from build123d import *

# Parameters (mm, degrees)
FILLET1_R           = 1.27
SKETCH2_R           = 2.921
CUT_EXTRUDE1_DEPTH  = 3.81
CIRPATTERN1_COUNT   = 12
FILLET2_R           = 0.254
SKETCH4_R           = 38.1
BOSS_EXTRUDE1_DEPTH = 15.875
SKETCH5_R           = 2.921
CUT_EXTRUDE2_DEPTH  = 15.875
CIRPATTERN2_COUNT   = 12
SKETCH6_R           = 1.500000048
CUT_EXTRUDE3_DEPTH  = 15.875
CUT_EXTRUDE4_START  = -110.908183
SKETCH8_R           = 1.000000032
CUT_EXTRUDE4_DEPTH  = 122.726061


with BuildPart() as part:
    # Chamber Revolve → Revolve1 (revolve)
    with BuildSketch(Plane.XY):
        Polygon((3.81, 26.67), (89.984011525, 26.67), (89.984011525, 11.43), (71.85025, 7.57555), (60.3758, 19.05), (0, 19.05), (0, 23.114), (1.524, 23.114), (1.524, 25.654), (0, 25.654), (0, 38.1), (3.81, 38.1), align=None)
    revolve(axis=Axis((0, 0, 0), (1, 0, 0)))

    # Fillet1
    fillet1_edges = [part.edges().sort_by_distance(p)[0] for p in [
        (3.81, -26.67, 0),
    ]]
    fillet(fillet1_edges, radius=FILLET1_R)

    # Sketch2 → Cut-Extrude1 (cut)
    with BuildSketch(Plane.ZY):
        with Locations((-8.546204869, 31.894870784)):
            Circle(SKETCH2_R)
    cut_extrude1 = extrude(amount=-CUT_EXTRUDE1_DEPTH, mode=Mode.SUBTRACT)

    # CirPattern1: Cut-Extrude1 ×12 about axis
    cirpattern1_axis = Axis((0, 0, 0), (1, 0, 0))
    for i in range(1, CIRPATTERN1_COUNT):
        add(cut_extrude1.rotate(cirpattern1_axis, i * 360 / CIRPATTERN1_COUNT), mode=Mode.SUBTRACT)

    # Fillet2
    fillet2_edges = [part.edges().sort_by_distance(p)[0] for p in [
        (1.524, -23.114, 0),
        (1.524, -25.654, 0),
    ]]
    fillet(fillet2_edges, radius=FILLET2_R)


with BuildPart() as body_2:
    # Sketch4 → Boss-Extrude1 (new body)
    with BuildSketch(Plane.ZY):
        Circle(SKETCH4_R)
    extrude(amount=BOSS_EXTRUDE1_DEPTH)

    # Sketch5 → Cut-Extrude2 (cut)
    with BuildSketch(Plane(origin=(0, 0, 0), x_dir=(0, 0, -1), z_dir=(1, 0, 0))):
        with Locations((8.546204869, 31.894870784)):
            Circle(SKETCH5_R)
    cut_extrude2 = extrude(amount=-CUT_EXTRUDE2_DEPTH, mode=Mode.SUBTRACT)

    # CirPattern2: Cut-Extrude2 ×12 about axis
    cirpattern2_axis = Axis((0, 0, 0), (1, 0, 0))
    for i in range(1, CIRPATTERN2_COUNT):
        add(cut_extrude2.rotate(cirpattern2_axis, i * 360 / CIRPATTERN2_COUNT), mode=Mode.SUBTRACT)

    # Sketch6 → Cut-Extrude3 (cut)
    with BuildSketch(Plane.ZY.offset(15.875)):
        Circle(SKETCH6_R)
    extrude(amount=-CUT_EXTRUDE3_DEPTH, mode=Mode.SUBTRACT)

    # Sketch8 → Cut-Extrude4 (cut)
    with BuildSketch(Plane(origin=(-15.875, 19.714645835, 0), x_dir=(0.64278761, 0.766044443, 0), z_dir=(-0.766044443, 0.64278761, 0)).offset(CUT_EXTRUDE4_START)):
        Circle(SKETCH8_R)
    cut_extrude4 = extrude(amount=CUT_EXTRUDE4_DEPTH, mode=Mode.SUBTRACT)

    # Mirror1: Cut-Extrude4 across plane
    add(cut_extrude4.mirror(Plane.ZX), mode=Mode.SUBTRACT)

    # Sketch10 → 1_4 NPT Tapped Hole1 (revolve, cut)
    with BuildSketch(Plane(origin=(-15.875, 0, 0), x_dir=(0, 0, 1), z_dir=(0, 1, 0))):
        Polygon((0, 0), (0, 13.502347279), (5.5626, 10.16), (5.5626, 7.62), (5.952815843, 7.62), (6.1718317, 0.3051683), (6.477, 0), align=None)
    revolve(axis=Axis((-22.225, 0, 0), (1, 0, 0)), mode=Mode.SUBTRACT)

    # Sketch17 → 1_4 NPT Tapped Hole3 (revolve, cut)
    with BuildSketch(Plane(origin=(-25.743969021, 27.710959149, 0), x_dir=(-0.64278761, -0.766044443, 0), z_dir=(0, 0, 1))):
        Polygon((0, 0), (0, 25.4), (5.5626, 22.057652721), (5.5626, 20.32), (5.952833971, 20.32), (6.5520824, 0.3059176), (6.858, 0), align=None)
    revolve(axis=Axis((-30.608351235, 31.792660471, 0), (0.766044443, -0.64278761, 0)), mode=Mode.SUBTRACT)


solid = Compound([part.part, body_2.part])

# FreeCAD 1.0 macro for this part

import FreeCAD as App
import Part
import Sketcher

V = App.Vector
Q = App.Units.Quantity


def edges_at(feature, points):
    """Names of the edges that pass closest to the given points."""
    edges = feature.Shape.Edges
    near = lambda p: min(range(len(edges)), key=lambda i: edges[i].distToShape(Part.Vertex(*p))[0])
    return sorted({f"Edge{near(p) + 1}" for p in points})


def add_polygon(sketch, points):
    """Adds a closed chain of lines whose ends are joined by coincident constraints."""
    first, n = sketch.GeometryCount, len(points)
    for a, b in zip(points, points[1:] + points[:1]):
        sketch.addGeometry(Part.LineSegment(App.Vector(*a, 0), App.Vector(*b, 0)), False)
    for i in range(n):
        sketch.addConstraint(Sketcher.Constraint("Coincident", first + i, 2, first + (i + 1) % n, 1))

doc = App.newDocument("Part")
body = doc.addObject("PartDesign::Body", "Body")

# Sketch on XY plane
sketch1 = body.newObject("Sketcher::SketchObject", "Sketch")
sketch1.AttachmentSupport = (doc.getObject("XY_Plane"), [""])
sketch1.MapMode = "FlatFace"
add_polygon(sketch1, [(90, 26.7), (3.8, 26.7), (3.8, 38.1), (0, 38.1), (0, 25.7), (1.5, 25.7), (1.5, 23.1), (0, 23.1), (0, 19.1), (60.4, 19.1), (71.9, 7.6), (90, 11.4)])  # lines 0-11
sketch1.addConstraint(Sketcher.Constraint("Horizontal", 0))
sketch1.addConstraint(Sketcher.Constraint("Vertical", 1))
sketch1.addConstraint(Sketcher.Constraint("Horizontal", 2))
sketch1.addConstraint(Sketcher.Constraint("Vertical", 3))
sketch1.addConstraint(Sketcher.Constraint("Horizontal", 4))
sketch1.addConstraint(Sketcher.Constraint("Vertical", 5))
sketch1.addConstraint(Sketcher.Constraint("Horizontal", 6))
sketch1.addConstraint(Sketcher.Constraint("Vertical", 7))
sketch1.addConstraint(Sketcher.Constraint("Horizontal", 8))
sketch1.addConstraint(Sketcher.Constraint("Vertical", 11))
sketch1.addConstraint(Sketcher.Constraint("PointOnObject", 2, 2, -2))
sketch1.addConstraint(Sketcher.Constraint("PointOnObject", 6, 2, -2))
sketch1.addConstraint(Sketcher.Constraint("DistanceY", 5, 2, 5, 1, Q("0.1 in")))
sketch1.addConstraint(Sketcher.Constraint("DistanceY", 11, 1, 11, 2, Q("0.6 in")))
sketch1.addConstraint(Sketcher.Constraint("Angle", 9, Q("-45 deg")))
sketch1.addConstraint(Sketcher.Constraint("Angle", 10, Q("12 deg")))
sketch1.addConstraint(Sketcher.Constraint("DistanceX", 2, 2, 2, 1, Q("0.15 in")))
sketch1.addConstraint(Sketcher.Constraint("DistanceX", 4, 1, 4, 2, Q("0.06 in")))
sketch1.addConstraint(Sketcher.Constraint("DistanceY", 1, 1, 1, 2, Q("0.45 in")))
sketch1.addConstraint(Sketcher.Constraint("DistanceY", 3, 2, 3, 1, Q("0.49 in")))
sketch1.addConstraint(Sketcher.Constraint("DistanceY", 7, 2, 7, 1, Q("0.16 in")))
sketch1.addConstraint(Sketcher.Constraint("DistanceY", -1, 1, 1, 2, Q("1.5 in")))
sketch1.addConstraint(Sketcher.Constraint("DistanceX", 8, 1, 8, 2, Q("2.377 in")))
sketch1.addConstraint(Sketcher.Constraint("DistanceX", 0, 2, 0, 1, Q("86.174012 mm")))
revolution = body.newObject("PartDesign::Revolution", "Revolution")
revolution.Profile = sketch1
revolution.ReferenceAxis = (sketch1, ["H_Axis"])
revolution.Angle = 360
doc.recompute()

fillet = body.newObject("PartDesign::Fillet", "Fillet")
fillet.Base = (revolution, edges_at(revolution, [(3.81, -26.67, 0)]))
fillet.Radius = Q("0.05 in")

# Sketch on YZ plane
sketch2 = body.newObject("Sketcher::SketchObject", "Sketch001")
sketch2.AttachmentSupport = (doc.getObject("YZ_Plane"), [""])
sketch2.MapMode = "FlatFace"
sketch2.addGeometry(Part.Circle(V(31.9, -8.5, 0), V(0, 0, 1), 2.9), False)
sketch2.addConstraint(Sketcher.Constraint("Diameter", 0, Q("0.23 in")))
sketch2.addConstraint(Sketcher.Constraint("DistanceX", -1, 1, 0, 3, Q("31.894871 mm")))
sketch2.addConstraint(Sketcher.Constraint("DistanceY", 0, 3, -1, 1, Q("8.546205 mm")))
pocket1 = body.newObject("PartDesign::Pocket", "Pocket")
pocket1.Profile = sketch2
pocket1.Length = Q("0.15 in")
pocket1.Reversed = True
doc.recompute()

polarpattern = body.newObject("PartDesign::PolarPattern", "PolarPattern")
polarpattern.Originals = [pocket1]
polarpattern.Axis = (doc.getObject("X_Axis"), [""])
polarpattern.Angle = 360
polarpattern.Occurrences = 12
body.Tip = polarpattern
doc.recompute()

fillet2 = body.newObject("PartDesign::Fillet", "Fillet001")
fillet2.Base = (polarpattern, edges_at(polarpattern, [(1.524, -23.114, 0), (1.524, -25.654, 0)]))
fillet2.Radius = Q("0.01 in")
body2 = doc.addObject("PartDesign::Body", "Body001")

# Sketch on YZ plane
sketch3 = body2.newObject("Sketcher::SketchObject", "Sketch002")
sketch3.AttachmentSupport = (doc.getObject("YZ_Plane001"), [""])
sketch3.MapMode = "FlatFace"
sketch3.addGeometry(Part.Circle(V(0, 0, 0), V(0, 0, 1), 38), False)
sketch3.addConstraint(Sketcher.Constraint("Coincident", 0, 3, -1, 1))
sketch3.addConstraint(Sketcher.Constraint("Diameter", 0, Q("3 in")))
pad1 = body2.newObject("PartDesign::Pad", "Pad")
pad1.Profile = sketch3
pad1.Length = Q("0.625 in")
pad1.Reversed = True

# Sketch on YZ plane
sketch4 = body2.newObject("Sketcher::SketchObject", "Sketch003")
sketch4.AttachmentSupport = (doc.getObject("YZ_Plane001"), [""])
sketch4.MapMode = "FlatFace"
sketch4.addGeometry(Part.Circle(V(31.9, -8.5, 0), V(0, 0, 1), 2.9), False)
sketch4.addConstraint(Sketcher.Constraint("Diameter", 0, Q("0.23 in")))
sketch4.addConstraint(Sketcher.Constraint("DistanceX", -1, 1, 0, 3, Q("31.894871 mm")))
sketch4.addConstraint(Sketcher.Constraint("DistanceY", 0, 3, -1, 1, Q("8.546205 mm")))
pocket2 = body2.newObject("PartDesign::Pocket", "Pocket001")
pocket2.Profile = sketch4
pocket2.Length = Q("0.625 in")
doc.recompute()

polarpattern2 = body2.newObject("PartDesign::PolarPattern", "PolarPattern001")
polarpattern2.Originals = [pocket2]
polarpattern2.Axis = (doc.getObject("X_Axis001"), [""])
polarpattern2.Angle = 360
polarpattern2.Occurrences = 12
body2.Tip = polarpattern2

# Sketch on YZ plane
sketch5 = body2.newObject("Sketcher::SketchObject", "Sketch004")
sketch5.AttachmentSupport = (doc.getObject("YZ_Plane001"), [""])
sketch5.MapMode = "FlatFace"
sketch5.AttachmentOffset = App.Placement(V(0, 0, -0.625 * 25.4), App.Rotation())
sketch5.addGeometry(Part.Circle(V(0, 0, 0), V(0, 0, 1), 1.5), False)
sketch5.addConstraint(Sketcher.Constraint("Coincident", 0, 3, -1, 1))
sketch5.addConstraint(Sketcher.Constraint("Diameter", 0, Q("3 mm")))
pocket3 = body2.newObject("PartDesign::Pocket", "Pocket002")
pocket3.Profile = sketch5
pocket3.Length = Q("0.625 in")
pocket3.Reversed = True

# Sketch on an angled plane
sketch6 = body2.newObject("Sketcher::SketchObject", "Sketch005")
sketch6.Placement = App.Placement(V(69.085597, -51.57576, 0), App.Rotation(V(0.64278761, 0.766044443, 0), V(0, 0, -1), V(-0.766044443, 0.64278761, 0), "ZXY"))
sketch6.addGeometry(Part.Circle(V(0, 0, 0), V(0, 0, 1), 1), False)
sketch6.addConstraint(Sketcher.Constraint("Coincident", 0, 3, -1, 1))
sketch6.addConstraint(Sketcher.Constraint("Diameter", 0, Q("2 mm")))
pocket4 = body2.newObject("PartDesign::Pocket", "Pocket003")
pocket4.Profile = sketch6
pocket4.Length = 122.726061
pocket4.Reversed = True
doc.recompute()

mirrored = body2.newObject("PartDesign::Mirrored", "Mirrored")
mirrored.Originals = [pocket4]
mirrored.MirrorPlane = (doc.getObject("XZ_Plane001"), [""])
body2.Tip = mirrored

# Sketch on XZ plane
sketch7 = body2.newObject("Sketcher::SketchObject", "Sketch006")
sketch7.AttachmentSupport = (doc.getObject("XZ_Plane001"), [""])
sketch7.MapMode = "FlatFace"
add_polygon(sketch7, [(-2.37, 0), (-15.88, 0), (-15.88, 6.48), (-15.57, 6.17), (-8.26, 5.95), (-8.26, 5.56), (-5.71, 5.56)])  # lines 0-6
sketch7.addConstraint(Sketcher.Constraint("Horizontal", 0))
sketch7.addConstraint(Sketcher.Constraint("Vertical", 1))
sketch7.addConstraint(Sketcher.Constraint("Vertical", 4))
sketch7.addConstraint(Sketcher.Constraint("Horizontal", 5))
sketch7.addConstraint(Sketcher.Constraint("PointOnObject", 0, 2, -1))
sketch7.addConstraint(Sketcher.Constraint("DistanceX", 5, 1, 5, 2, Q("0.1 in")))
sketch7.addConstraint(Sketcher.Constraint("Angle", 2, Q("-45 deg")))
sketch7.addConstraint(Sketcher.Constraint("Angle", 6, Q("-59 deg")))
sketch7.addConstraint(Sketcher.Constraint("DistanceX", 1, 2, 3, 2, Q("0.3 in")))
sketch7.addConstraint(Sketcher.Constraint("DistanceY", 1, 1, 1, 2, Q("0.255 in")))
sketch7.addConstraint(Sketcher.Constraint("DistanceX", 0, 2, -1, 1, Q("0.625 in")))
sketch7.addConstraint(Sketcher.Constraint("DistanceY", -1, 1, 4, 2, Q("0.219 in")))
sketch7.addConstraint(Sketcher.Constraint("Distance", 3, Q("7.31811 mm")))
sketch7.addConstraint(Sketcher.Constraint("DistanceY", 4, 2, 4, 1, Q("0.390216 mm")))
groove = body2.newObject("PartDesign::Groove", "Groove")
groove.Profile = sketch7
groove.ReferenceAxis = (sketch7, ["H_Axis"])
groove.Angle = 360

# Sketch on XY plane
sketch8 = body2.newObject("Sketcher::SketchObject", "Sketch007")
sketch8.AttachmentSupport = (doc.getObject("XY_Plane001"), [""])
sketch8.MapMode = "FlatFace"
add_polygon(sketch8, [(-6.29, 11.38), (-25.74, 27.71), (-30.15, 22.46), (-29.72, 22.5), (-14, 10.09), (-13.75, 10.39), (-12.42, 9.27)])  # lines 0-6
sketch8.addGeometry(Part.LineSegment(V(-25.74, 27.71, 0), V(-6.29, 11.38, 0)), True)  # axis
sketch8.addConstraint(Sketcher.Constraint("Coincident", 7, 1, 0, 2))
sketch8.addConstraint(Sketcher.Constraint("Coincident", 7, 2, 6, 2))
sketch8.addConstraint(Sketcher.Constraint("Perpendicular", 0, 1))
sketch8.addConstraint(Sketcher.Constraint("Parallel", 1, 4))
sketch8.addConstraint(Sketcher.Constraint("Perpendicular", 4, 5))
sketch8.addConstraint(Sketcher.Constraint("Distance", 0, Q("1 in")))
sketch8.addConstraint(Sketcher.Constraint("Angle", 0, Q("140 deg")))
sketch8.addConstraint(Sketcher.Constraint("Angle", 2, Q("5 deg")))
sketch8.addConstraint(Sketcher.Constraint("Angle", 6, Q("19 deg")))
sketch8.addConstraint(Sketcher.Constraint("Distance", 1, Q("0.27 in")))
sketch8.addConstraint(Sketcher.Constraint("Distance", 3, Q("20.023052 mm")))
sketch8.addConstraint(Sketcher.Constraint("DistanceX", 0, 2, -1, 1, Q("25.743969 mm")))
sketch8.addConstraint(Sketcher.Constraint("DistanceY", -1, 1, 0, 2, Q("27.710959 mm")))
sketch8.addConstraint(Sketcher.Constraint("DistanceX", 2, 2, -1, 1, Q("29.72122 mm")))
sketch8.addConstraint(Sketcher.Constraint("DistanceY", -1, 1, 3, 2, Q("10.08938 mm")))
sketch8.addConstraint(Sketcher.Constraint("DistanceX", 1, 2, 4, 2, Q("16.39869 mm")))
groove2 = body2.newObject("PartDesign::Groove", "Groove001")
groove2.Profile = sketch8
groove2.ReferenceAxis = (sketch8, ["Axis0"])
groove2.Angle = 360

doc.recompute()
